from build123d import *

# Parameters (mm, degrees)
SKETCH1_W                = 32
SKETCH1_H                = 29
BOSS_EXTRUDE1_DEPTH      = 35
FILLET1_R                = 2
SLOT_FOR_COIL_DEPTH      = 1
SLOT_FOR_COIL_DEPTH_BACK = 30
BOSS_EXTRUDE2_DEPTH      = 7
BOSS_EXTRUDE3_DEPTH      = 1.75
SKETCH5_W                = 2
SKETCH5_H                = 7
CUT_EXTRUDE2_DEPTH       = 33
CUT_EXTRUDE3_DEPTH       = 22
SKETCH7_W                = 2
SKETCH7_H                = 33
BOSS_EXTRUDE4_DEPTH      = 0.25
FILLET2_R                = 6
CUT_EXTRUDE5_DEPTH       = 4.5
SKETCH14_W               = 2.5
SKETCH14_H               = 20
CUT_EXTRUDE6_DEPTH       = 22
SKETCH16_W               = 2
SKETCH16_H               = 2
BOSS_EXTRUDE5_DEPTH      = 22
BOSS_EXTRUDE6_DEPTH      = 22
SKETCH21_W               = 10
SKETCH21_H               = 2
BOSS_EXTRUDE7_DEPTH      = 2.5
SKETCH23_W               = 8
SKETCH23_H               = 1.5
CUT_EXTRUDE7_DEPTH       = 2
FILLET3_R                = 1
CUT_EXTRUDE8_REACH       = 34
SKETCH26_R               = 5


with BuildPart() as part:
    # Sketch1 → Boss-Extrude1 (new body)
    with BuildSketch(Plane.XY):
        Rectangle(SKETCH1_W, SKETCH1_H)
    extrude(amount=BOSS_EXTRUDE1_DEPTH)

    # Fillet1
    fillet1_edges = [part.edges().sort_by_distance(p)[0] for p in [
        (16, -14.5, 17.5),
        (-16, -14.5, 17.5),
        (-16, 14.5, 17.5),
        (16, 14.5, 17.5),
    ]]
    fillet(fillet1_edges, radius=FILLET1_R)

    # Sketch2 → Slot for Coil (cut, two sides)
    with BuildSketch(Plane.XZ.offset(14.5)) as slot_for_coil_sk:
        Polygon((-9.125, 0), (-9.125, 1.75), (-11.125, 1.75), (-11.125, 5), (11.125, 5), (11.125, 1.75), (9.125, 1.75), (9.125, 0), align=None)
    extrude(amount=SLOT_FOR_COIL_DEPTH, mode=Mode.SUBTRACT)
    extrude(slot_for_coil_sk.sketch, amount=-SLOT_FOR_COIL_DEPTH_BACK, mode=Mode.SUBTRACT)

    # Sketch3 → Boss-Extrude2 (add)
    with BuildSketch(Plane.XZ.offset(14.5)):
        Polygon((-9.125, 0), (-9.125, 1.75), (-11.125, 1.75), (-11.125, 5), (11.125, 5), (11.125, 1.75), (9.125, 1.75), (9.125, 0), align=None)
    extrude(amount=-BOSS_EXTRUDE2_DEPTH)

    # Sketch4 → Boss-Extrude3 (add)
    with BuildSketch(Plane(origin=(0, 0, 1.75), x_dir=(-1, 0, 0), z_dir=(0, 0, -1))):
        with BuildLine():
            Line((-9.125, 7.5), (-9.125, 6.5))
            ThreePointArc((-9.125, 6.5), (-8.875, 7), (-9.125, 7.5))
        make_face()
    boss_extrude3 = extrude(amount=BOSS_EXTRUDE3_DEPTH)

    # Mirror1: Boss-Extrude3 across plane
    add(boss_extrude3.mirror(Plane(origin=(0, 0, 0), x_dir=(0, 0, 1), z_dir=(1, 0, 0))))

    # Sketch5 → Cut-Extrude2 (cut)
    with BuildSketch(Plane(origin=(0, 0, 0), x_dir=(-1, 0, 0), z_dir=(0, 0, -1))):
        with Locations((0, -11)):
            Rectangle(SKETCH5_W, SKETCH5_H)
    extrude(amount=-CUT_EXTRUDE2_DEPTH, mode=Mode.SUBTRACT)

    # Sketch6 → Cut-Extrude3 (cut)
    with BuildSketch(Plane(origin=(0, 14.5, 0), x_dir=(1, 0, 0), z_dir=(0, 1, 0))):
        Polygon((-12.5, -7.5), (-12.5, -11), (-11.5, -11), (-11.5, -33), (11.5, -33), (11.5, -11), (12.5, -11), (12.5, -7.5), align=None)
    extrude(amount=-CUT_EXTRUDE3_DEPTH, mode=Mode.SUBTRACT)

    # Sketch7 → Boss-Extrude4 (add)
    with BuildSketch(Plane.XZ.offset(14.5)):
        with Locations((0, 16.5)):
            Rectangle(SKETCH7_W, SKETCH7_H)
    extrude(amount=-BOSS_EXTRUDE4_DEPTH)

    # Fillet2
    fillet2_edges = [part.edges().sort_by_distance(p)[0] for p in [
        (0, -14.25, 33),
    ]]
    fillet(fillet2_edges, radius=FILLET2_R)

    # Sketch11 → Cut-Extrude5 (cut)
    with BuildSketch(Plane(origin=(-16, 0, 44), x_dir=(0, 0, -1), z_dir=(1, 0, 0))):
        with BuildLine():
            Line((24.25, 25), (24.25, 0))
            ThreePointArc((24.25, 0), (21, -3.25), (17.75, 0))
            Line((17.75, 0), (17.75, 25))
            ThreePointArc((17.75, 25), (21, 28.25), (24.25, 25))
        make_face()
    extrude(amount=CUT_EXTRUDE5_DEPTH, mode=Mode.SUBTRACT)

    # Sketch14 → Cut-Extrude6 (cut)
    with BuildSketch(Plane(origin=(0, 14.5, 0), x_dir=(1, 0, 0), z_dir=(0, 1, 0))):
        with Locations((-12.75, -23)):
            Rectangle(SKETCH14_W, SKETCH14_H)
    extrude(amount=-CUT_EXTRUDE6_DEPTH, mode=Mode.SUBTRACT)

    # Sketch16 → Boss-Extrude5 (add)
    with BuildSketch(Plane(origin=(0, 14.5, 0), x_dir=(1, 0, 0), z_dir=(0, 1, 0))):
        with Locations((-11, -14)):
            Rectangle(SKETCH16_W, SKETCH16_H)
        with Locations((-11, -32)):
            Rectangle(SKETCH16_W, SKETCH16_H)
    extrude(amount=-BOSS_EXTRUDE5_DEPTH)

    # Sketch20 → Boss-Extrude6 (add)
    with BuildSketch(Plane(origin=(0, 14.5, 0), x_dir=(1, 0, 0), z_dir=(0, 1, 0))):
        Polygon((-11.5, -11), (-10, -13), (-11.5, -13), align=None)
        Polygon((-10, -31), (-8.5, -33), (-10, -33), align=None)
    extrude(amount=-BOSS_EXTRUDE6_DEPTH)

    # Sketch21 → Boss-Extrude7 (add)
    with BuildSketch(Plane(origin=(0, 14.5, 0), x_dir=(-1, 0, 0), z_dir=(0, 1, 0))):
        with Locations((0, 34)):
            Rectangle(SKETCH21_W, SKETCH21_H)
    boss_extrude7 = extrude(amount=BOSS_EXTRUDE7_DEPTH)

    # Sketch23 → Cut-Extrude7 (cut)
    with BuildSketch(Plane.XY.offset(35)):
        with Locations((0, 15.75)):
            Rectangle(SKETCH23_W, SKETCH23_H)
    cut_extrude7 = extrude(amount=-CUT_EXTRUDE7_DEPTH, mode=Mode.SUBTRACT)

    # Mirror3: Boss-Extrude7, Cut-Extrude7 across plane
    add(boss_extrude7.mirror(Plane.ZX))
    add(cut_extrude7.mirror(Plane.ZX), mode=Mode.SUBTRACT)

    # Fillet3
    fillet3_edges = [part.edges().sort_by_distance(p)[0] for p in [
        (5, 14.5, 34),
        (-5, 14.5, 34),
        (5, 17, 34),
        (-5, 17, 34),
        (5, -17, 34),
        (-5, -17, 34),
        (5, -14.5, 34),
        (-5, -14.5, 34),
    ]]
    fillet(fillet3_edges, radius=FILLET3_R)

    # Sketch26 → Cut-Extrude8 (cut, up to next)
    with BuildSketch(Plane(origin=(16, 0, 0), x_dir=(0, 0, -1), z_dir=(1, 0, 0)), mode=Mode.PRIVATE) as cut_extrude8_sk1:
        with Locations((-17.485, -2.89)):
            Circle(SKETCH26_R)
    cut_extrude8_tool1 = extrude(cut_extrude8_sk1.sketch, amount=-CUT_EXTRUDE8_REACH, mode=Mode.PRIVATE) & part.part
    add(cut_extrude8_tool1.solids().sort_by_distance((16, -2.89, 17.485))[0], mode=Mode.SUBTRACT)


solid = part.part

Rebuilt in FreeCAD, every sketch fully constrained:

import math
import FreeCAD as App
import Part
import Sketcher
Q = App.Units.Quantity


def edges_at(feature, points):
    """Names of the edges that pass closest to the given points."""
    edges = feature.Shape.Edges
    near = lambda p: min(range(len(edges)), key=lambda i: edges[i].distToShape(Part.Vertex(*p))[0])
    return sorted({f"Edge{near(p) + 1}" for p in points})


def add_polygon(sketch, points):
    """Adds a closed chain of lines whose ends are joined by coincident constraints."""
    first, n = sketch.GeometryCount, len(points)
    for a, b in zip(points, points[1:] + points[:1]):
        sketch.addGeometry(Part.LineSegment(App.Vector(*a, 0), App.Vector(*b, 0)), False)
    for i in range(n):
        sketch.addConstraint(Sketcher.Constraint("Coincident", first + i, 2, first + (i + 1) % n, 1))

doc = App.newDocument("Part")
body = doc.addObject("PartDesign::Body", "Body")

# Sketch on XY plane
sketch1 = body.newObject("Sketcher::SketchObject", "Sketch")
sketch1.AttachmentSupport = (doc.getObject("XY_Plane"), [""])
sketch1.MapMode = "FlatFace"
add_polygon(sketch1, [(-16, 14.5), (-16, -14.5), (16, -14.5), (16, 14.5)])  # lines 0-3
sketch1.addConstraint([
    Sketcher.Constraint("Vertical", 0),
    Sketcher.Constraint("Horizontal", 1),
    Sketcher.Constraint("Vertical", 2),
    Sketcher.Constraint("Horizontal", 3),
    Sketcher.Constraint("Symmetric", 0, 2, 2, 2, -1, 1),
    Sketcher.Constraint("DistanceX", 1, 1, 1, 2, Q("32 mm")),
    Sketcher.Constraint("DistanceY", 0, 2, 0, 1, Q("29 mm")),
])
pad1 = body.newObject("PartDesign::Pad", "Pad")
pad1.Profile = sketch1
pad1.Length = 35
doc.recompute()

fillet = body.newObject("PartDesign::Fillet", "Fillet")
fillet.Base = (pad1, edges_at(pad1, [
    (16, -14.5, 17.5),
    (-16, -14.5, 17.5),
    (-16, 14.5, 17.5),
    (16, 14.5, 17.5),
]))
fillet.Radius = 2

# Sketch on XZ plane
sketch2 = body.newObject("Sketcher::SketchObject", "Sketch001")
sketch2.AttachmentSupport = (doc.getObject("XZ_Plane"), [""])
sketch2.MapMode = "FlatFace"
sketch2.AttachmentOffset = App.Placement(App.Vector(0, 0, 14.5), App.Rotation())
add_polygon(sketch2, [(-9.125, 1.75), (-9.125, 0), (9.125, 0), (9.125, 1.75), (11.125, 1.75), (11.125, 5), (-11.125, 5), (-11.125, 1.75)])  # lines 0-7
sketch2.addConstraint([
    Sketcher.Constraint("Vertical", 0),
    Sketcher.Constraint("Horizontal", 1),
    Sketcher.Constraint("Vertical", 2),
    Sketcher.Constraint("Horizontal", 3),
    Sketcher.Constraint("Vertical", 4),
    Sketcher.Constraint("Horizontal", 5),
    Sketcher.Constraint("Vertical", 6),
    Sketcher.Constraint("Horizontal", 7),
    Sketcher.Constraint("Symmetric", 0, 2, 1, 2, -1, 1),
    Sketcher.Constraint("Symmetric", 3, 2, 6, 2, -2),
    Sketcher.Constraint("DistanceX", 3, 1, 3, 2, Q("2 mm")),
    Sketcher.Constraint("DistanceY", -1, 1, 4, 2, Q("5 mm")),
    Sketcher.Constraint("DistanceX", 1, 1, 1, 2, Q("18.25 mm")),
    Sketcher.Constraint("DistanceY", 0, 2, 0, 1, Q("1.75 mm")),
])
pocket1 = body.newObject("PartDesign::Pocket", "Pocket")
pocket1.Profile = sketch2
pocket1.Type = "ThroughAll"
pocket1.Midplane = True

# Sketch on XZ plane
sketch3 = body.newObject("Sketcher::SketchObject", "Sketch002")
sketch3.AttachmentSupport = (doc.getObject("XZ_Plane"), [""])
sketch3.MapMode = "FlatFace"
sketch3.AttachmentOffset = App.Placement(App.Vector(0, 0, 14.5), App.Rotation())
add_polygon(sketch3, [(-9.125, 1.75), (-9.125, 0), (9.125, 0), (9.125, 1.75), (11.125, 1.75), (11.125, 5), (-11.125, 5), (-11.125, 1.75)])  # lines 0-7
sketch3.addConstraint([
    Sketcher.Constraint("Vertical", 0),
    Sketcher.Constraint("Horizontal", 1),
    Sketcher.Constraint("Vertical", 2),
    Sketcher.Constraint("Horizontal", 3),
    Sketcher.Constraint("Vertical", 4),
    Sketcher.Constraint("Horizontal", 5),
    Sketcher.Constraint("Vertical", 6),
    Sketcher.Constraint("Horizontal", 7),
    Sketcher.Constraint("Symmetric", 0, 2, 1, 2, -1, 1),
    Sketcher.Constraint("Symmetric", 3, 2, 6, 2, -2),
    Sketcher.Constraint("DistanceX", 3, 1, 3, 2, Q("2 mm")),
    Sketcher.Constraint("DistanceY", -1, 1, 4, 2, Q("5 mm")),
    Sketcher.Constraint("DistanceX", 1, 1, 1, 2, Q("18.25 mm")),
    Sketcher.Constraint("DistanceY", 0, 2, 0, 1, Q("1.75 mm")),
])
pad2 = body.newObject("PartDesign::Pad", "Pad001")
pad2.Profile = sketch3
pad2.Length = 7
pad2.Reversed = True

# Sketch on XY plane
sketch4 = body.newObject("Sketcher::SketchObject", "Sketch003")
sketch4.AttachmentSupport = (doc.getObject("XY_Plane"), [""])
sketch4.MapMode = "FlatFace"
sketch4.AttachmentOffset = App.Placement(App.Vector(0, 0, 1.75), App.Rotation())
sketch4.addGeometry([
    Part.LineSegment(App.Vector(9.125, 7.5, 0), App.Vector(9.125, 6.5, 0)),
    Part.ArcOfCircle(Part.Circle(App.Vector(9.5, 7, 0), App.Vector(0, 0, 1), 0.625), math.radians(126.869898), math.radians(233.130102)),
], False)
sketch4.addConstraint([
    Sketcher.Constraint("Coincident", 0, 1, 1, 1),
    Sketcher.Constraint("Coincident", 1, 2, 0, 2),
    Sketcher.Constraint("Vertical", 0),
    Sketcher.Constraint("DistanceY", 0, 2, 0, 1, Q("1 mm")),
    Sketcher.Constraint("DistanceY", -1, 1, 1, 3, Q("7 mm")),
    Sketcher.Constraint("Radius", 1, Q("0.625 mm")),
    Sketcher.Constraint("DistanceX", -1, 1, 1, 3, Q("9.5 mm")),
])
pad3 = body.newObject("PartDesign::Pad", "Pad002")
pad3.Profile = sketch4
pad3.Length = 1.75
pad3.Reversed = True
doc.recompute()

mirrored = body.newObject("PartDesign::Mirrored", "Mirrored")
mirrored.Originals = [pad3]
mirrored.MirrorPlane = (doc.getObject("YZ_Plane"), [""])
body.Tip = mirrored

# Sketch on XY plane
sketch5 = body.newObject("Sketcher::SketchObject", "Sketch004")
sketch5.AttachmentSupport = (doc.getObject("XY_Plane"), [""])
sketch5.MapMode = "FlatFace"
add_polygon(sketch5, [(1, -7.5), (1, -14.5), (-1, -14.5), (-1, -7.5)])  # lines 0-3
sketch5.addConstraint([
    Sketcher.Constraint("Vertical", 0),
    Sketcher.Constraint("Horizontal", 1),
    Sketcher.Constraint("Vertical", 2),
    Sketcher.Constraint("Horizontal", 3),
    Sketcher.Constraint("DistanceX", 1, 2, 1, 1, Q("2 mm")),
    Sketcher.Constraint("DistanceY", 0, 2, 0, 1, Q("7 mm")),
    Sketcher.Constraint("DistanceX", -1, 1, 0, 2, Q("1 mm")),
    Sketcher.Constraint("DistanceY", 0, 2, -1, 1, Q("14.5 mm")),
])
pocket2 = body.newObject("PartDesign::Pocket", "Pocket001")
pocket2.Profile = sketch5
pocket2.Length = 33
pocket2.Reversed = True

# Sketch on XZ plane
sketch6 = body.newObject("Sketcher::SketchObject", "Sketch005")
sketch6.AttachmentSupport = (doc.getObject("XZ_Plane"), [""])
sketch6.MapMode = "FlatFace"
sketch6.AttachmentOffset = App.Placement(App.Vector(0, 0, -14.5), App.Rotation())
add_polygon(sketch6, [(-12.5, 7.5), (-12.5, 11), (-11.5, 11), (-11.5, 33), (11.5, 33), (11.5, 11), (12.5, 11), (12.5, 7.5)])  # lines 0-7
sketch6.addConstraint([
    Sketcher.Constraint("Vertical", 0),
    Sketcher.Constraint("Horizontal", 1),
    Sketcher.Constraint("Vertical", 2),
    Sketcher.Constraint("Horizontal", 3),
    Sketcher.Constraint("Vertical", 4),
    Sketcher.Constraint("Horizontal", 5),
    Sketcher.Constraint("Vertical", 6),
    Sketcher.Constraint("Horizontal", 7),
    Sketcher.Constraint("Symmetric", 1, 2, 4, 2, -2),
    Sketcher.Constraint("Equal", 1, 5),
    Sketcher.Constraint("DistanceX", 1, 1, 1, 2, Q("1 mm")),
    Sketcher.Constraint("DistanceX", 3, 1, 3, 2, Q("23 mm")),
    Sketcher.Constraint("DistanceY", 2, 1, 2, 2, Q("22 mm")),
    Sketcher.Constraint("DistanceY", 0, 1, 0, 2, Q("3.5 mm")),
    Sketcher.Constraint("DistanceY", -1, 1, 0, 2, Q("11 mm")),
])
pocket3 = body.newObject("PartDesign::Pocket", "Pocket002")
pocket3.Profile = sketch6
pocket3.Length = 22
pocket3.Reversed = True

# Sketch on XZ plane
sketch7 = body.newObject("Sketcher::SketchObject", "Sketch006")
sketch7.AttachmentSupport = (doc.getObject("XZ_Plane"), [""])
sketch7.MapMode = "FlatFace"
sketch7.AttachmentOffset = App.Placement(App.Vector(0, 0, 14.5), App.Rotation())
add_polygon(sketch7, [(-1, 33), (-1, 0), (1, 0), (1, 33)])  # lines 0-3
sketch7.addConstraint([
    Sketcher.Constraint("Vertical", 0),
    Sketcher.Constraint("Horizontal", 1),
    Sketcher.Constraint("Vertical", 2),
    Sketcher.Constraint("Horizontal", 3),
    Sketcher.Constraint("Symmetric", 0, 2, 1, 2, -1, 1),
    Sketcher.Constraint("DistanceX", 1, 1, 1, 2, Q("2 mm")),
    Sketcher.Constraint("DistanceY", 0, 2, 0, 1, Q("33 mm")),
])
pad4 = body.newObject("PartDesign::Pad", "Pad003")
pad4.Profile = sketch7
pad4.Length = 0.25
pad4.Reversed = True
doc.recompute()

fillet2 = body.newObject("PartDesign::Fillet", "Fillet001")
fillet2.Base = (pad4, edges_at(pad4, [(0, -14.25, 33)]))
fillet2.Radius = 6

# Sketch on YZ plane
sketch8 = body.newObject("Sketcher::SketchObject", "Sketch007")
sketch8.AttachmentSupport = (doc.getObject("YZ_Plane"), [""])
sketch8.MapMode = "FlatFace"
sketch8.AttachmentOffset = App.Placement(App.Vector(0, 0, -16), App.Rotation())
sketch8.addGeometry([
    Part.LineSegment(App.Vector(0, 19.75, 0), App.Vector(25, 19.75, 0)),
    Part.ArcOfCircle(Part.Circle(App.Vector(25, 23, 0), App.Vector(0, 0, 1), 3.25), math.radians(-90), math.radians(90)),
    Part.LineSegment(App.Vector(25, 26.25, 0), App.Vector(0, 26.25, 0)),
    Part.ArcOfCircle(Part.Circle(App.Vector(0, 23, 0), App.Vector(0, 0, 1), 3.25), math.radians(90), math.radians(270)),
], False)
sketch8.addConstraint([
    Sketcher.Constraint("Tangent", 0, 2, 1, 1),
    Sketcher.Constraint("Tangent", 1, 2, 2, 1),
    Sketcher.Constraint("Tangent", 2, 2, 3, 1),
    Sketcher.Constraint("Tangent", 3, 2, 0, 1),
    Sketcher.Constraint("Horizontal", 0),
    Sketcher.Constraint("Horizontal", 2),
    Sketcher.Constraint("PointOnObject", 3, 3, -2),
    Sketcher.Constraint("DistanceX", 0, 1, 0, 2, Q("25 mm")),
    Sketcher.Constraint("Radius", 1, Q("3.25 mm")),
    Sketcher.Constraint("DistanceY", -1, 1, 1, 3, Q("23 mm")),
])
pocket4 = body.newObject("PartDesign::Pocket", "Pocket003")
pocket4.Profile = sketch8
pocket4.Length = 4.5
pocket4.Reversed = True

# Sketch on XZ plane
sketch9 = body.newObject("Sketcher::SketchObject", "Sketch008")
sketch9.AttachmentSupport = (doc.getObject("XZ_Plane"), [""])
sketch9.MapMode = "FlatFace"
sketch9.AttachmentOffset = App.Placement(App.Vector(0, 0, -14.5), App.Rotation())
add_polygon(sketch9, [(-14, 13), (-14, 33), (-11.5, 33), (-11.5, 13)])  # lines 0-3
sketch9.addConstraint([
    Sketcher.Constraint("Vertical", 0),
    Sketcher.Constraint("Horizontal", 1),
    Sketcher.Constraint("Vertical", 2),
    Sketcher.Constraint("Horizontal", 3),
    Sketcher.Constraint("DistanceY", 0, 1, 0, 2, Q("20 mm")),
    Sketcher.Constraint("DistanceX", 1, 1, 1, 2, Q("2.5 mm")),
    Sketcher.Constraint("DistanceX", 0, 2, -1, 1, Q("14 mm")),
    Sketcher.Constraint("DistanceY", -1, 1, 0, 2, Q("33 mm")),
])
pocket5 = body.newObject("PartDesign::Pocket", "Pocket004")
pocket5.Profile = sketch9
pocket5.Length = 22
pocket5.Reversed = True

# Sketch on XZ plane
sketch10 = body.newObject("Sketcher::SketchObject", "Sketch009")
sketch10.AttachmentSupport = (doc.getObject("XZ_Plane"), [""])
sketch10.MapMode = "FlatFace"
sketch10.AttachmentOffset = App.Placement(App.Vector(0, 0, -14.5), App.Rotation())
add_polygon(sketch10, [(-12, 13), (-12, 15), (-10, 15), (-10, 13)])  # lines 0-3
add_polygon(sketch10, [(-12, 31), (-12, 33), (-10, 33), (-10, 31)])  # lines 4-7
sketch10.addConstraint([
    Sketcher.Constraint("Vertical", 0),
    Sketcher.Constraint("Horizontal", 1),
    Sketcher.Constraint("Vertical", 2),
    Sketcher.Constraint("Horizontal", 3),
    Sketcher.Constraint("Vertical", 4),
    Sketcher.Constraint("Horizontal", 5),
    Sketcher.Constraint("Vertical", 6),
    Sketcher.Constraint("Horizontal", 7),
    Sketcher.Constraint("Vertical", 3, 2, 4, 2),
    Sketcher.Constraint("Vertical", 2, 2, 5, 2),
    Sketcher.Constraint("Equal", 7, 0),
    Sketcher.Constraint("Equal", 2, 4),
    Sketcher.Constraint("DistanceX", 1, 1, 1, 2, Q("2 mm")),
    Sketcher.Constraint("DistanceX", 0, 2, -1, 1, Q("12 mm")),
    Sketcher.Constraint("DistanceY", -1, 1, 0, 2, Q("15 mm")),
    Sketcher.Constraint("DistanceY", -1, 1, 4, 2, Q("33 mm")),
])
pad5 = body.newObject("PartDesign::Pad", "Pad004")
pad5.Profile = sketch10
pad5.Length = 22

# Sketch on XZ plane
sketch11 = body.newObject("Sketcher::SketchObject", "Sketch010")
sketch11.AttachmentSupport = (doc.getObject("XZ_Plane"), [""])
sketch11.MapMode = "FlatFace"
sketch11.AttachmentOffset = App.Placement(App.Vector(0, 0, -14.5), App.Rotation())
add_polygon(sketch11, [(-10, 13), (-11.5, 11), (-11.5, 13)])  # lines 0-2
add_polygon(sketch11, [(-8.5, 33), (-10, 31), (-10, 33)])  # lines 3-5
sketch11.addConstraint([
    Sketcher.Constraint("Vertical", 1),
    Sketcher.Constraint("Horizontal", 2),
    Sketcher.Constraint("Vertical", 4),
    Sketcher.Constraint("Horizontal", 5),
    Sketcher.Constraint("Parallel", 0, 3),
    Sketcher.Constraint("Vertical", 2, 2, 3, 2),
    Sketcher.Constraint("Equal", 2, 5),
    Sketcher.Constraint("DistanceY", 1, 1, 1, 2, Q("2 mm")),
    Sketcher.Constraint("DistanceX", 2, 1, 2, 2, Q("1.5 mm")),
    Sketcher.Constraint("DistanceY", -1, 1, 0, 2, Q("11 mm")),
    Sketcher.Constraint("DistanceX", 2, 2, -1, 1, Q("10 mm")),
    Sketcher.Constraint("DistanceY", -1, 1, 3, 2, Q("31 mm")),
])
pad6 = body.newObject("PartDesign::Pad", "Pad005")
pad6.Profile = sketch11
pad6.Length = 22

# Sketch on XZ plane
sketch12 = body.newObject("Sketcher::SketchObject", "Sketch011")
sketch12.AttachmentSupport = (doc.getObject("XZ_Plane"), [""])
sketch12.MapMode = "FlatFace"
sketch12.AttachmentOffset = App.Placement(App.Vector(0, 0, -14.5), App.Rotation())
add_polygon(sketch12, [(5, 35), (5, 33), (-5, 33), (-5, 35)])  # lines 0-3
sketch12.addConstraint([
    Sketcher.Constraint("Vertical", 0),
    Sketcher.Constraint("Horizontal", 1),
    Sketcher.Constraint("Vertical", 2),
    Sketcher.Constraint("Horizontal", 3),
    Sketcher.Constraint("DistanceX", 1, 2, 1, 1, Q("10 mm")),
    Sketcher.Constraint("DistanceY", 0, 2, 0, 1, Q("2 mm")),
    Sketcher.Constraint("DistanceX", -1, 1, 0, 2, Q("5 mm")),
    Sketcher.Constraint("DistanceY", -1, 1, 0, 2, Q("33 mm")),
])
pad7 = body.newObject("PartDesign::Pad", "Pad006")
pad7.Profile = sketch12
pad7.Length = 2.5
pad7.Reversed = True

# Sketch on XY plane
sketch13 = body.newObject("Sketcher::SketchObject", "Sketch012")
sketch13.AttachmentSupport = (doc.getObject("XY_Plane"), [""])
sketch13.MapMode = "FlatFace"
sketch13.AttachmentOffset = App.Placement(App.Vector(0, 0, 35), App.Rotation())
add_polygon(sketch13, [(-4, 16.5), (-4, 15), (4, 15), (4, 16.5)])  # lines 0-3
sketch13.addConstraint([
    Sketcher.Constraint("Vertical", 0),
    Sketcher.Constraint("Horizontal", 1),
    Sketcher.Constraint("Vertical", 2),
    Sketcher.Constraint("Horizontal", 3),
    Sketcher.Constraint("DistanceX", 1, 1, 1, 2, Q("8 mm")),
    Sketcher.Constraint("DistanceY", 0, 2, 0, 1, Q("1.5 mm")),
    Sketcher.Constraint("DistanceX", 0, 2, -1, 1, Q("4 mm")),
    Sketcher.Constraint("DistanceY", -1, 1, 0, 2, Q("15 mm")),
])
pocket6 = body.newObject("PartDesign::Pocket", "Pocket005")
pocket6.Profile = sketch13
pocket6.Length = 2
doc.recompute()

mirrored2 = body.newObject("PartDesign::Mirrored", "Mirrored001")
mirrored2.Originals = [pad7, pocket6]
mirrored2.MirrorPlane = (doc.getObject("XZ_Plane"), [""])
body.Tip = mirrored2
doc.recompute()

fillet3 = body.newObject("PartDesign::Fillet", "Fillet002")
fillet3.Base = (mirrored2, edges_at(mirrored2, [
    (5, 14.5, 34),
    (-5, 14.5, 34),
    (5, 17, 34),
    (-5, 17, 34),
    (5, -17, 34),
    (-5, -17, 34),
    (5, -14.5, 34),
    (-5, -14.5, 34),
]))
fillet3.Radius = 1

# Sketch on YZ plane
sketch14 = body.newObject("Sketcher::SketchObject", "Sketch013")
sketch14.AttachmentSupport = (doc.getObject("YZ_Plane"), [""])
sketch14.MapMode = "FlatFace"
sketch14.AttachmentOffset = App.Placement(App.Vector(0, 0, 16), App.Rotation())
sketch14.addGeometry(Part.Circle(App.Vector(-2.89, 17.485, 0), App.Vector(0, 0, 1), 5), False)
sketch14.addConstraint([
    Sketcher.Constraint("Diameter", 0, Q("10 mm")),
    Sketcher.Constraint("DistanceX", 0, 3, -1, 1, Q("2.89 mm")),
    Sketcher.Constraint("DistanceY", -1, 1, 0, 3, Q("17.485 mm")),
])
pocket7 = body.newObject("PartDesign::Pocket", "Pocket006")
pocket7.Profile = sketch14
pocket7.Length = 15

doc.recompute()
